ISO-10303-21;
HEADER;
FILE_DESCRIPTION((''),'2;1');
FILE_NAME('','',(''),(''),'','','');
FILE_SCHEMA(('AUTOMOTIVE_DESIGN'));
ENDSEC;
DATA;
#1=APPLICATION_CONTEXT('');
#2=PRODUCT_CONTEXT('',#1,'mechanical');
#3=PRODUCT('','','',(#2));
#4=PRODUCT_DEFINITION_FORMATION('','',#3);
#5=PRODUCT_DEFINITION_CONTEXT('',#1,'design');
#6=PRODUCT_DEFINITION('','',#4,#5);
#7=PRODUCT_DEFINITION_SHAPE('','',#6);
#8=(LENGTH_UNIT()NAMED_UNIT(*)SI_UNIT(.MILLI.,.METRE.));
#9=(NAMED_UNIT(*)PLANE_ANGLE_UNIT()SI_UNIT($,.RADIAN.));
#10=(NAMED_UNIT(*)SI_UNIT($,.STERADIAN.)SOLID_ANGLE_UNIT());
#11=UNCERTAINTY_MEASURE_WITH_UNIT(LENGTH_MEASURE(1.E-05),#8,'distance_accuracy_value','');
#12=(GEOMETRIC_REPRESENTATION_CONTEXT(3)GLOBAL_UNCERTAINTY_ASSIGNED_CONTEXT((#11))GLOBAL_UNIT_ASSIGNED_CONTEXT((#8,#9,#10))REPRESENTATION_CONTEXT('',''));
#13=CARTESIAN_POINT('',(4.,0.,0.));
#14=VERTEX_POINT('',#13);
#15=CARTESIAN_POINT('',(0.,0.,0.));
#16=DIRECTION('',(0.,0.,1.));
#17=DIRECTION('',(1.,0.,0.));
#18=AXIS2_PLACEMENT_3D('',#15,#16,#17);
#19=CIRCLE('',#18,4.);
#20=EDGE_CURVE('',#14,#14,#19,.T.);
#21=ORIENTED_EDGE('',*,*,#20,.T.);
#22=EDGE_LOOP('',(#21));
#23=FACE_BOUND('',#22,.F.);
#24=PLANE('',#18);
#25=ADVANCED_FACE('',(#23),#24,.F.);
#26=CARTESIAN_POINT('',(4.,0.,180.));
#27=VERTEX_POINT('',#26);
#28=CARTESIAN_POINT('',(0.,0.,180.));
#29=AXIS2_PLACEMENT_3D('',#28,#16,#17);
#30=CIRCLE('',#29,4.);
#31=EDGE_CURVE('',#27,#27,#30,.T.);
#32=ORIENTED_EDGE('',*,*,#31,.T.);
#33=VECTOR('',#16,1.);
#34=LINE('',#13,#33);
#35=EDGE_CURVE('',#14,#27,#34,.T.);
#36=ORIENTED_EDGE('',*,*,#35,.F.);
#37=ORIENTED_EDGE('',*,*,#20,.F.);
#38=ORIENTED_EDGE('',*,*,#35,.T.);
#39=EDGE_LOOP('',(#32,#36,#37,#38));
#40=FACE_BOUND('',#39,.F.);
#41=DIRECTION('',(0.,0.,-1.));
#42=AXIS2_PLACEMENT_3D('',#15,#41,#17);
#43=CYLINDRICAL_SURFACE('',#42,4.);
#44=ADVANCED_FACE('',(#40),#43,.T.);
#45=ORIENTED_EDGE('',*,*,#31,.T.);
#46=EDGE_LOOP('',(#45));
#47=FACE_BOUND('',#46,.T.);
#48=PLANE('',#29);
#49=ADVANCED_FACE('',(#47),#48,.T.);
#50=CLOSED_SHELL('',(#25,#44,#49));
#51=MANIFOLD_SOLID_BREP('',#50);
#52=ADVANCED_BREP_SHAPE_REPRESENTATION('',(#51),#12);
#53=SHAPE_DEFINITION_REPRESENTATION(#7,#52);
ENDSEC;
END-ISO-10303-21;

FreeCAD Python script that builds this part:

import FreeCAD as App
import Part
import Sketcher
from FreeCAD import Vector
Q = App.Units.Quantity

doc = App.newDocument("Part")
body = doc.addObject("PartDesign::Body", "Body")

sketch1 = body.newObject("Sketcher::SketchObject", "Sketch")
sketch1.AttachmentSupport = (doc.getObject("XY_Plane"), [""])
sketch1.MapMode = "FlatFace"
sketch1.addGeometry(Part.Circle(Vector(0, 0, 0), Vector(0, 0, 1), 4), False)
sketch1.addConstraint([
    Sketcher.Constraint("Coincident", 0, 3, -1, 1),
    Sketcher.Constraint("Diameter", 0, Q("8 mm")),
])
pad1 = body.newObject("PartDesign::Pad", "Pad")
pad1.Profile = sketch1
pad1.Length = 180

doc.recompute()
